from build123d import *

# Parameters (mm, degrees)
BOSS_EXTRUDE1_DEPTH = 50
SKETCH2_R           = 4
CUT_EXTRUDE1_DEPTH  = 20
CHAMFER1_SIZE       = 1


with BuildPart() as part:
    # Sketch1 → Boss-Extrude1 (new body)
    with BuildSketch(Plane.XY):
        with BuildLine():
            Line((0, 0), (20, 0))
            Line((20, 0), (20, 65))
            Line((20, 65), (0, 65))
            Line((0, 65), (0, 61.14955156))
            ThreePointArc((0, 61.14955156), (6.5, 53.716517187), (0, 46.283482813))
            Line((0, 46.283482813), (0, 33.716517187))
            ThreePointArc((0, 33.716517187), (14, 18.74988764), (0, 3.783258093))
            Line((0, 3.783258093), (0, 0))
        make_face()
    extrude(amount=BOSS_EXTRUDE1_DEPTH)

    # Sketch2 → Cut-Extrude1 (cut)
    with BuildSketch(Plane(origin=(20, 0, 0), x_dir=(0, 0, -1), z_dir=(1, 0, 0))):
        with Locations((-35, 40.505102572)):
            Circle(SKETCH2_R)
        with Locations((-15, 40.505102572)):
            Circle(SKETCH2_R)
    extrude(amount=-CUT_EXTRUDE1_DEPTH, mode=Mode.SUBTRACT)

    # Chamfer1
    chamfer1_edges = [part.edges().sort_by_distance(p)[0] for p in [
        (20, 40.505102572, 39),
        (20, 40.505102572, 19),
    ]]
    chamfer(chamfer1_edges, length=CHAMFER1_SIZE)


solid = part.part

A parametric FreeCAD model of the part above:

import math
import FreeCAD as App
import Part
import Sketcher

V = App.Vector
Q = App.Units.Quantity


def edges_at(feature, points):
    """Names of the edges that pass closest to the given points."""
    edges = feature.Shape.Edges
    near = lambda p: min(range(len(edges)), key=lambda i: edges[i].distToShape(Part.Vertex(*p))[0])
    return sorted({f"Edge{near(p) + 1}" for p in points})

doc = App.newDocument("Part")
body = doc.addObject("PartDesign::Body", "Body")

# Sketch on XY plane
sketch1 = body.newObject("Sketcher::SketchObject", "Sketch")
sketch1.AttachmentSupport = (doc.getObject("XY_Plane"), [""])
sketch1.MapMode = "FlatFace"
sketch1.addGeometry([
    Part.LineSegment(V(0, 0, 0), V(20, 0, 0)),  # 0
    Part.LineSegment(V(20, 0, 0), V(20, 65, 0)),  # 1
    Part.LineSegment(V(20, 65, 0), V(0, 65, 0)),  # 2
    Part.LineSegment(V(0, 65, 0), V(0, 61.1, 0)),  # 3
    Part.ArcOfCircle(Part.Circle(V(-1, 53.7, 0), V(0, 0, 1), 7.5), math.radians(-82), math.radians(82)),  # 4
    Part.LineSegment(V(0, 46.3, 0), V(0, 33.7, 0)),  # 5
    Part.ArcOfCircle(Part.Circle(V(-1, 18.7, 0), V(0, 0, 1), 15), math.radians(-86), math.radians(86)),  # 6
    Part.LineSegment(V(0, 3.8, 0), V(0, 0, 0)),  # 7
], False)
sketch1.addConstraint([
    Sketcher.Constraint("Coincident", 0, 2, 1, 1),
    Sketcher.Constraint("Coincident", 1, 2, 2, 1),
    Sketcher.Constraint("Coincident", 2, 2, 3, 1),
    Sketcher.Constraint("Coincident", 3, 2, 4, 2),
    Sketcher.Constraint("Coincident", 4, 1, 5, 1),
    Sketcher.Constraint("Coincident", 5, 2, 6, 2),
    Sketcher.Constraint("Coincident", 6, 1, 7, 1),
    Sketcher.Constraint("Coincident", 7, 2, 0, 1),
    Sketcher.Constraint("Horizontal", 0),
    Sketcher.Constraint("Vertical", 1),
    Sketcher.Constraint("Horizontal", 2),
    Sketcher.Constraint("Vertical", 3),
    Sketcher.Constraint("Vertical", 5),
    Sketcher.Constraint("Vertical", 7),
    Sketcher.Constraint("Coincident", 7, 2, -1, 1),
    Sketcher.Constraint("PointOnObject", 2, 2, -2),
    Sketcher.Constraint("PointOnObject", 4, 1, -2),
    Sketcher.Constraint("Vertical", 4, 3, 6, 3),
    Sketcher.Constraint("Radius", 6, Q("15 mm")),
    Sketcher.Constraint("Radius", 4, Q("7.5 mm")),
    Sketcher.Constraint("DistanceX", 0, 1, 0, 2, Q("20 mm")),
    Sketcher.Constraint("DistanceY", 1, 1, 1, 2, Q("65 mm")),
    Sketcher.Constraint("DistanceX", 4, 3, -1, 1, Q("1 mm")),
    Sketcher.Constraint("DistanceY", 5, 2, 4, 3, Q("20 mm")),
    Sketcher.Constraint("DistanceY", 3, 2, 3, 1, Q("3.850448 mm")),
])
pad1 = body.newObject("PartDesign::Pad", "Pad")
pad1.Profile = sketch1
pad1.Length = 50

# Sketch on YZ plane
sketch2 = body.newObject("Sketcher::SketchObject", "Sketch001")
sketch2.AttachmentSupport = (doc.getObject("YZ_Plane"), [""])
sketch2.MapMode = "FlatFace"
sketch2.AttachmentOffset = App.Placement(V(0, 0, 20), App.Rotation())
sketch2.addGeometry([
    Part.Circle(V(40.5, 35, 0), V(0, 0, 1), 4),
    Part.Circle(V(40.5, 15, 0), V(0, 0, 1), 4),
], False)
sketch2.addConstraint([
    Sketcher.Constraint("Equal", 0, 1),
    Sketcher.Constraint("Vertical", 0, 3, 1, 3),
    Sketcher.Constraint("Diameter", 0, Q("8 mm")),
    Sketcher.Constraint("DistanceY", -1, 1, 0, 3, Q("35 mm")),
    Sketcher.Constraint("DistanceY", -1, 1, 1, 3, Q("15 mm")),
    Sketcher.Constraint("DistanceX", -1, 1, 0, 3, Q("40.505103 mm")),
])
pocket1 = body.newObject("PartDesign::Pocket", "Pocket")
pocket1.Profile = sketch2
pocket1.Length = 20
doc.recompute()

chamfer = body.newObject("PartDesign::Chamfer", "Chamfer")
chamfer.Base = (pocket1, edges_at(pocket1, [(20, 40.505, 39), (20, 40.505, 19)]))
chamfer.Size = 1

doc.recompute()
